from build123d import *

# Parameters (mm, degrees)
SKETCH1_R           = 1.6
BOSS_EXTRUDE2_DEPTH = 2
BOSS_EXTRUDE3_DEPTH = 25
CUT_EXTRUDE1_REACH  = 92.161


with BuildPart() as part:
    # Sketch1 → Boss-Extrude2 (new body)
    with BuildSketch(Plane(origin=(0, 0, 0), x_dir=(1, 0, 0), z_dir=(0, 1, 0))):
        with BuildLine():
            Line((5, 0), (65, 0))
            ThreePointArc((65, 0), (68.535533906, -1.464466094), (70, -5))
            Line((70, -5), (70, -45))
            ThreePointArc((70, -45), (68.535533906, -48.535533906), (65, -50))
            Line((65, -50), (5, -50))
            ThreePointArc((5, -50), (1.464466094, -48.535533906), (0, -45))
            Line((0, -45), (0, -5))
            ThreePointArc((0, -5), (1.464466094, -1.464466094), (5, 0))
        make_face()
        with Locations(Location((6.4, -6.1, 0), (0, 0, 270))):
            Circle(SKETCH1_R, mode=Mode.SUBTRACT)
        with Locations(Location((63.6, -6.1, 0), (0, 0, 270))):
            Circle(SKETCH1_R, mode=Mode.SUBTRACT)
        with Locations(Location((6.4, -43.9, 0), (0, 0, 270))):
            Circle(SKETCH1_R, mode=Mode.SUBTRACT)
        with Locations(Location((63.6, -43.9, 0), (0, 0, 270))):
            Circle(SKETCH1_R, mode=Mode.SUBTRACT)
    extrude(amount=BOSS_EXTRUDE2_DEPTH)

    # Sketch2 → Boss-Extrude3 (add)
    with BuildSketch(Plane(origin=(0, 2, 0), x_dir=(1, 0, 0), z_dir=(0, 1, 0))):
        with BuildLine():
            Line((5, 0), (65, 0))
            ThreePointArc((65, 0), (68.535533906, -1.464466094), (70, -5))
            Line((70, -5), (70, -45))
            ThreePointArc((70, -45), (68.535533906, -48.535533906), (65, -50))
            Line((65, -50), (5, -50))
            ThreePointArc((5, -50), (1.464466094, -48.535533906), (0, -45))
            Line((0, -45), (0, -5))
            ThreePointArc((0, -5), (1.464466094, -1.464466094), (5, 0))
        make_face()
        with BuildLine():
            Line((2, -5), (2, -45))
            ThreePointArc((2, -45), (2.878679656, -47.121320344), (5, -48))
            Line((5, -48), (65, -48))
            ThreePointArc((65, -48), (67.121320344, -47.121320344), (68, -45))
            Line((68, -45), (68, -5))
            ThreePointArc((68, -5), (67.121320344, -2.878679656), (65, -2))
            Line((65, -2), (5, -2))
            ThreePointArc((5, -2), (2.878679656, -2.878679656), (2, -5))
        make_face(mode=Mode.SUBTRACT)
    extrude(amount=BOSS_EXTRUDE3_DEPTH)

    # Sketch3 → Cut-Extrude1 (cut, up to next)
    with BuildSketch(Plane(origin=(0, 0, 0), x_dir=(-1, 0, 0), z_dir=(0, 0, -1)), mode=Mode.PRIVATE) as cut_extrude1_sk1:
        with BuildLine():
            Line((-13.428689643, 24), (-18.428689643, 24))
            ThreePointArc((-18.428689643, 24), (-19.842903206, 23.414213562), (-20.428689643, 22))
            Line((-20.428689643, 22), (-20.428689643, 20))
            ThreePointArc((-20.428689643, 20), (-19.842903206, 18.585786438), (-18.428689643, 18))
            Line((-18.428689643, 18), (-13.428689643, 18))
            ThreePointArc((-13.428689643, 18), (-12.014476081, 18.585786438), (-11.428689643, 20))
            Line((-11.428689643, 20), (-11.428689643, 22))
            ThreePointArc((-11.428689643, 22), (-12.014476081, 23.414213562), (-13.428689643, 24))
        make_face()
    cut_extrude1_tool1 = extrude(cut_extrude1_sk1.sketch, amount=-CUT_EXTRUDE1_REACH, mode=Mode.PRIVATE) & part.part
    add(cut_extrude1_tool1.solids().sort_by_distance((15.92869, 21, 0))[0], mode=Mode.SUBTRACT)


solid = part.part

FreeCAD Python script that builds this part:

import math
import FreeCAD as App
import Part
import Sketcher

V = App.Vector
Q = App.Units.Quantity

doc = App.newDocument("Part")
params = doc.addObject("Spreadsheet::Sheet", "Params")
for row, (alias, value) in enumerate([
    ("sketch1_radius", "5 mm"),
    ("sketch1_diameter", "3.2 mm"),
    ("sketch1_width", "60 mm"),
    ("sketch1_height", "40 mm"),
    ("pad1_length", "2 mm"),
    ("sketch2_radius", "5 mm"),
    ("sketch2_radius2", "3 mm"),
    ("sketch2_width", "60 mm"),
    ("sketch2_height", "40 mm"),
    ("pad2_length", "25 mm"),
    ("sketch3_radius", "2 mm"),
    ("sketch3_width", "5 mm"),
    ("sketch3_height", "2 mm"),
], start=1):
    params.set(f"A{row}", alias)
    params.set(f"B{row}", "=" + value)
    params.setAlias(f"B{row}", alias)

body = doc.addObject("PartDesign::Body", "Body")

# Sketch on XZ plane
sketch1 = body.newObject("Sketcher::SketchObject", "Sketch")
sketch1.AttachmentSupport = (doc.getObject("XZ_Plane"), [""])
sketch1.MapMode = "FlatFace"
sketch1.addGeometry([
    Part.LineSegment(V(65, 0, 0), V(5, 0, 0)),  # 0
    Part.ArcOfCircle(Part.Circle(V(5, 5, 0), V(0, 0, 1), 5), math.radians(180), math.radians(270)),  # 1
    Part.LineSegment(V(0, 5, 0), V(0, 45, 0)),  # 2
    Part.ArcOfCircle(Part.Circle(V(5, 45, 0), V(0, 0, 1), 5), math.radians(90), math.radians(180)),  # 3
    Part.LineSegment(V(5, 50, 0), V(65, 50, 0)),  # 4
    Part.ArcOfCircle(Part.Circle(V(65, 45, 0), V(0, 0, 1), 5), math.radians(0), math.radians(90)),  # 5
    Part.LineSegment(V(70, 45, 0), V(70, 5, 0)),  # 6
    Part.ArcOfCircle(Part.Circle(V(65, 5, 0), V(0, 0, 1), 5), math.radians(-90), math.radians(0)),  # 7
    Part.Circle(V(63.6, 43.9, 0), V(0, 0, 1), 1.6),  # 8
    Part.Circle(V(6.4, 43.9, 0), V(0, 0, 1), 1.6),  # 9
    Part.Circle(V(63.6, 6.1, 0), V(0, 0, 1), 1.6),  # 10
    Part.Circle(V(6.4, 6.1, 0), V(0, 0, 1), 1.6),  # 11
], False)
sketch1.addConstraint([
    Sketcher.Constraint("Tangent", 0, 2, 1, 2),
    Sketcher.Constraint("Tangent", 1, 1, 2, 1),
    Sketcher.Constraint("Tangent", 2, 2, 3, 2),
    Sketcher.Constraint("Tangent", 3, 1, 4, 1),
    Sketcher.Constraint("Tangent", 4, 2, 5, 2),
    Sketcher.Constraint("Tangent", 5, 1, 6, 1),
    Sketcher.Constraint("Tangent", 6, 2, 7, 2),
    Sketcher.Constraint("Tangent", 7, 1, 0, 1),
    Sketcher.Constraint("Horizontal", 0),
    Sketcher.Constraint("Vertical", 2),
    Sketcher.Constraint("Horizontal", 4),
    Sketcher.Constraint("Vertical", 6),
    Sketcher.Constraint("Equal", 1, 3),
    Sketcher.Constraint("Equal", 3, 5),
    Sketcher.Constraint("Equal", 5, 7),
    Sketcher.Constraint("Equal", 8, 9),
    Sketcher.Constraint("Equal", 9, 10),
    Sketcher.Constraint("Equal", 10, 11),
    Sketcher.Constraint("PointOnObject", 0, 2, -1),
    Sketcher.Constraint("PointOnObject", 1, 1, -2),
    Sketcher.Constraint("Horizontal", 8, 3, 9, 3),
    Sketcher.Constraint("Horizontal", 10, 3, 11, 3),
    Sketcher.Constraint("Vertical", 8, 3, 10, 3),
    Sketcher.Constraint("Vertical", 9, 3, 11, 3),
    Sketcher.Constraint("Radius", 1, Q("5 mm")),
    Sketcher.Constraint("Diameter", 8, Q("3.2 mm")),
    Sketcher.Constraint("DistanceX", 0, 2, 0, 1, Q("60 mm")),
    Sketcher.Constraint("DistanceY", 2, 1, 2, 2, Q("40 mm")),
    Sketcher.Constraint("DistanceX", -1, 1, 8, 3, Q("63.6 mm")),
    Sketcher.Constraint("DistanceY", -1, 1, 8, 3, Q("43.9 mm")),
    Sketcher.Constraint("DistanceX", -1, 1, 9, 3, Q("6.4 mm")),
    Sketcher.Constraint("DistanceY", -1, 1, 10, 3, Q("6.1 mm")),
])
sketch1.setExpression("Constraints[24]", "Params.sketch1_radius")
sketch1.setExpression("Constraints[25]", "Params.sketch1_diameter")
sketch1.setExpression("Constraints[26]", "Params.sketch1_width")
sketch1.setExpression("Constraints[27]", "Params.sketch1_height")
pad1 = body.newObject("PartDesign::Pad", "Pad")
pad1.Profile = sketch1
pad1.setExpression("Length", "Params.pad1_length")
pad1.Reversed = True

# Sketch on XZ plane
sketch2 = body.newObject("Sketcher::SketchObject", "Sketch001")
sketch2.AttachmentSupport = (doc.getObject("XZ_Plane"), [""])
sketch2.MapMode = "FlatFace"
sketch2.AttachmentOffset = App.Placement(V(0, 0, -2), App.Rotation())
sketch2.addGeometry([
    Part.LineSegment(V(65, 0, 0), V(5, 0, 0)),  # 0
    Part.ArcOfCircle(Part.Circle(V(5, 5, 0), V(0, 0, 1), 5), math.radians(180), math.radians(270)),  # 1
    Part.LineSegment(V(0, 5, 0), V(0, 45, 0)),  # 2
    Part.ArcOfCircle(Part.Circle(V(5, 45, 0), V(0, 0, 1), 5), math.radians(90), math.radians(180)),  # 3
    Part.LineSegment(V(5, 50, 0), V(65, 50, 0)),  # 4
    Part.ArcOfCircle(Part.Circle(V(65, 45, 0), V(0, 0, 1), 5), math.radians(0), math.radians(90)),  # 5
    Part.LineSegment(V(70, 45, 0), V(70, 5, 0)),  # 6
    Part.ArcOfCircle(Part.Circle(V(65, 5, 0), V(0, 0, 1), 5), math.radians(-90), math.radians(0)),  # 7
    Part.ArcOfCircle(Part.Circle(V(5, 5, 0), V(0, 0, 1), 3), math.radians(180), math.radians(270)),  # 8
    Part.LineSegment(V(5, 2, 0), V(65, 2, 0)),  # 9
    Part.ArcOfCircle(Part.Circle(V(65, 5, 0), V(0, 0, 1), 3), math.radians(-90), math.radians(0)),  # 10
    Part.LineSegment(V(68, 5, 0), V(68, 45, 0)),  # 11
    Part.ArcOfCircle(Part.Circle(V(65, 45, 0), V(0, 0, 1), 3), math.radians(0), math.radians(90)),  # 12
    Part.LineSegment(V(65, 48, 0), V(5, 48, 0)),  # 13
    Part.ArcOfCircle(Part.Circle(V(5, 45, 0), V(0, 0, 1), 3), math.radians(90), math.radians(180)),  # 14
    Part.LineSegment(V(2, 45, 0), V(2, 5, 0)),  # 15
], False)
sketch2.addConstraint([
    Sketcher.Constraint("Tangent", 0, 2, 1, 2),
    Sketcher.Constraint("Tangent", 1, 1, 2, 1),
    Sketcher.Constraint("Tangent", 2, 2, 3, 2),
    Sketcher.Constraint("Tangent", 3, 1, 4, 1),
    Sketcher.Constraint("Tangent", 4, 2, 5, 2),
    Sketcher.Constraint("Tangent", 5, 1, 6, 1),
    Sketcher.Constraint("Tangent", 6, 2, 7, 2),
    Sketcher.Constraint("Tangent", 7, 1, 0, 1),
    Sketcher.Constraint("Tangent", 8, 2, 9, 1),
    Sketcher.Constraint("Tangent", 9, 2, 10, 1),
    Sketcher.Constraint("Tangent", 10, 2, 11, 1),
    Sketcher.Constraint("Tangent", 11, 2, 12, 1),
    Sketcher.Constraint("Tangent", 12, 2, 13, 1),
    Sketcher.Constraint("Tangent", 13, 2, 14, 1),
    Sketcher.Constraint("Tangent", 14, 2, 15, 1),
    Sketcher.Constraint("Tangent", 15, 2, 8, 1),
    Sketcher.Constraint("Horizontal", 0),
    Sketcher.Constraint("Vertical", 2),
    Sketcher.Constraint("Horizontal", 4),
    Sketcher.Constraint("Vertical", 6),
    Sketcher.Constraint("Horizontal", 9),
    Sketcher.Constraint("Vertical", 11),
    Sketcher.Constraint("Horizontal", 13),
    Sketcher.Constraint("Vertical", 15),
    Sketcher.Constraint("Coincident", 8, 3, 1, 3),
    Sketcher.Constraint("Coincident", 10, 3, 7, 3),
    Sketcher.Constraint("Coincident", 12, 3, 5, 3),
    Sketcher.Constraint("Equal", 1, 3),
    Sketcher.Constraint("Equal", 3, 5),
    Sketcher.Constraint("Equal", 5, 7),
    Sketcher.Constraint("Equal", 12, 14),
    Sketcher.Constraint("PointOnObject", 0, 2, -1),
    Sketcher.Constraint("PointOnObject", 1, 1, -2),
    Sketcher.Constraint("Radius", 1, Q("5 mm")),
    Sketcher.Constraint("Radius", 8, Q("3 mm")),
    Sketcher.Constraint("DistanceX", 0, 2, 0, 1, Q("60 mm")),
    Sketcher.Constraint("DistanceY", 2, 1, 2, 2, Q("40 mm")),
])
sketch2.setExpression("Constraints[33]", "Params.sketch2_radius")
sketch2.setExpression("Constraints[34]", "Params.sketch2_radius2")
sketch2.setExpression("Constraints[35]", "Params.sketch2_width")
sketch2.setExpression("Constraints[36]", "Params.sketch2_height")
pad2 = body.newObject("PartDesign::Pad", "Pad001")
pad2.Profile = sketch2
pad2.setExpression("Length", "Params.pad2_length")
pad2.Reversed = True

# Sketch on XY plane
sketch3 = body.newObject("Sketcher::SketchObject", "Sketch002")
sketch3.AttachmentSupport = (doc.getObject("XY_Plane"), [""])
sketch3.MapMode = "FlatFace"
sketch3.addGeometry([
    Part.LineSegment(V(13.42869, 24, 0), V(18.42869, 24, 0)),  # 0
    Part.ArcOfCircle(Part.Circle(V(18.42869, 22, 0), V(0, 0, 1), 2), math.radians(0), math.radians(90)),  # 1
    Part.LineSegment(V(20.42869, 22, 0), V(20.42869, 20, 0)),  # 2
    Part.ArcOfCircle(Part.Circle(V(18.42869, 20, 0), V(0, 0, 1), 2), math.radians(-90), math.radians(0)),  # 3
    Part.LineSegment(V(18.42869, 18, 0), V(13.42869, 18, 0)),  # 4
    Part.ArcOfCircle(Part.Circle(V(13.42869, 20, 0), V(0, 0, 1), 2), math.radians(-180), math.radians(-90)),  # 5
    Part.LineSegment(V(11.42869, 20, 0), V(11.42869, 22, 0)),  # 6
    Part.ArcOfCircle(Part.Circle(V(13.42869, 22, 0), V(0, 0, 1), 2), math.radians(90), math.radians(180)),  # 7
], False)
sketch3.addConstraint([
    Sketcher.Constraint("Tangent", 0, 2, 1, 2),
    Sketcher.Constraint("Tangent", 1, 1, 2, 1),
    Sketcher.Constraint("Tangent", 2, 2, 3, 2),
    Sketcher.Constraint("Tangent", 3, 1, 4, 1),
    Sketcher.Constraint("Tangent", 4, 2, 5, 2),
    Sketcher.Constraint("Tangent", 5, 1, 6, 1),
    Sketcher.Constraint("Tangent", 6, 2, 7, 2),
    Sketcher.Constraint("Tangent", 7, 1, 0, 1),
    Sketcher.Constraint("Horizontal", 0),
    Sketcher.Constraint("Vertical", 2),
    Sketcher.Constraint("Horizontal", 4),
    Sketcher.Constraint("Vertical", 6),
    Sketcher.Constraint("Equal", 1, 3),
    Sketcher.Constraint("Equal", 3, 5),
    Sketcher.Constraint("Equal", 5, 7),
    Sketcher.Constraint("Radius", 1, Q("2 mm")),
    Sketcher.Constraint("DistanceX", 0, 1, 0, 2, Q("5 mm")),
    Sketcher.Constraint("DistanceY", 2, 2, 2, 1, Q("2 mm")),
    Sketcher.Constraint("DistanceY", -1, 1, 1, 3, Q("22 mm")),
    Sketcher.Constraint("DistanceX", -1, 1, 1, 3, Q("18.42869 mm")),
])
sketch3.setExpression("Constraints[15]", "Params.sketch3_radius")
sketch3.setExpression("Constraints[16]", "Params.sketch3_width")
sketch3.setExpression("Constraints[17]", "Params.sketch3_height")
pocket1 = body.newObject("PartDesign::Pocket", "Pocket")
pocket1.Profile = sketch3
pocket1.Type = "UpToFirst"
pocket1.Reversed = True

doc.recompute()
